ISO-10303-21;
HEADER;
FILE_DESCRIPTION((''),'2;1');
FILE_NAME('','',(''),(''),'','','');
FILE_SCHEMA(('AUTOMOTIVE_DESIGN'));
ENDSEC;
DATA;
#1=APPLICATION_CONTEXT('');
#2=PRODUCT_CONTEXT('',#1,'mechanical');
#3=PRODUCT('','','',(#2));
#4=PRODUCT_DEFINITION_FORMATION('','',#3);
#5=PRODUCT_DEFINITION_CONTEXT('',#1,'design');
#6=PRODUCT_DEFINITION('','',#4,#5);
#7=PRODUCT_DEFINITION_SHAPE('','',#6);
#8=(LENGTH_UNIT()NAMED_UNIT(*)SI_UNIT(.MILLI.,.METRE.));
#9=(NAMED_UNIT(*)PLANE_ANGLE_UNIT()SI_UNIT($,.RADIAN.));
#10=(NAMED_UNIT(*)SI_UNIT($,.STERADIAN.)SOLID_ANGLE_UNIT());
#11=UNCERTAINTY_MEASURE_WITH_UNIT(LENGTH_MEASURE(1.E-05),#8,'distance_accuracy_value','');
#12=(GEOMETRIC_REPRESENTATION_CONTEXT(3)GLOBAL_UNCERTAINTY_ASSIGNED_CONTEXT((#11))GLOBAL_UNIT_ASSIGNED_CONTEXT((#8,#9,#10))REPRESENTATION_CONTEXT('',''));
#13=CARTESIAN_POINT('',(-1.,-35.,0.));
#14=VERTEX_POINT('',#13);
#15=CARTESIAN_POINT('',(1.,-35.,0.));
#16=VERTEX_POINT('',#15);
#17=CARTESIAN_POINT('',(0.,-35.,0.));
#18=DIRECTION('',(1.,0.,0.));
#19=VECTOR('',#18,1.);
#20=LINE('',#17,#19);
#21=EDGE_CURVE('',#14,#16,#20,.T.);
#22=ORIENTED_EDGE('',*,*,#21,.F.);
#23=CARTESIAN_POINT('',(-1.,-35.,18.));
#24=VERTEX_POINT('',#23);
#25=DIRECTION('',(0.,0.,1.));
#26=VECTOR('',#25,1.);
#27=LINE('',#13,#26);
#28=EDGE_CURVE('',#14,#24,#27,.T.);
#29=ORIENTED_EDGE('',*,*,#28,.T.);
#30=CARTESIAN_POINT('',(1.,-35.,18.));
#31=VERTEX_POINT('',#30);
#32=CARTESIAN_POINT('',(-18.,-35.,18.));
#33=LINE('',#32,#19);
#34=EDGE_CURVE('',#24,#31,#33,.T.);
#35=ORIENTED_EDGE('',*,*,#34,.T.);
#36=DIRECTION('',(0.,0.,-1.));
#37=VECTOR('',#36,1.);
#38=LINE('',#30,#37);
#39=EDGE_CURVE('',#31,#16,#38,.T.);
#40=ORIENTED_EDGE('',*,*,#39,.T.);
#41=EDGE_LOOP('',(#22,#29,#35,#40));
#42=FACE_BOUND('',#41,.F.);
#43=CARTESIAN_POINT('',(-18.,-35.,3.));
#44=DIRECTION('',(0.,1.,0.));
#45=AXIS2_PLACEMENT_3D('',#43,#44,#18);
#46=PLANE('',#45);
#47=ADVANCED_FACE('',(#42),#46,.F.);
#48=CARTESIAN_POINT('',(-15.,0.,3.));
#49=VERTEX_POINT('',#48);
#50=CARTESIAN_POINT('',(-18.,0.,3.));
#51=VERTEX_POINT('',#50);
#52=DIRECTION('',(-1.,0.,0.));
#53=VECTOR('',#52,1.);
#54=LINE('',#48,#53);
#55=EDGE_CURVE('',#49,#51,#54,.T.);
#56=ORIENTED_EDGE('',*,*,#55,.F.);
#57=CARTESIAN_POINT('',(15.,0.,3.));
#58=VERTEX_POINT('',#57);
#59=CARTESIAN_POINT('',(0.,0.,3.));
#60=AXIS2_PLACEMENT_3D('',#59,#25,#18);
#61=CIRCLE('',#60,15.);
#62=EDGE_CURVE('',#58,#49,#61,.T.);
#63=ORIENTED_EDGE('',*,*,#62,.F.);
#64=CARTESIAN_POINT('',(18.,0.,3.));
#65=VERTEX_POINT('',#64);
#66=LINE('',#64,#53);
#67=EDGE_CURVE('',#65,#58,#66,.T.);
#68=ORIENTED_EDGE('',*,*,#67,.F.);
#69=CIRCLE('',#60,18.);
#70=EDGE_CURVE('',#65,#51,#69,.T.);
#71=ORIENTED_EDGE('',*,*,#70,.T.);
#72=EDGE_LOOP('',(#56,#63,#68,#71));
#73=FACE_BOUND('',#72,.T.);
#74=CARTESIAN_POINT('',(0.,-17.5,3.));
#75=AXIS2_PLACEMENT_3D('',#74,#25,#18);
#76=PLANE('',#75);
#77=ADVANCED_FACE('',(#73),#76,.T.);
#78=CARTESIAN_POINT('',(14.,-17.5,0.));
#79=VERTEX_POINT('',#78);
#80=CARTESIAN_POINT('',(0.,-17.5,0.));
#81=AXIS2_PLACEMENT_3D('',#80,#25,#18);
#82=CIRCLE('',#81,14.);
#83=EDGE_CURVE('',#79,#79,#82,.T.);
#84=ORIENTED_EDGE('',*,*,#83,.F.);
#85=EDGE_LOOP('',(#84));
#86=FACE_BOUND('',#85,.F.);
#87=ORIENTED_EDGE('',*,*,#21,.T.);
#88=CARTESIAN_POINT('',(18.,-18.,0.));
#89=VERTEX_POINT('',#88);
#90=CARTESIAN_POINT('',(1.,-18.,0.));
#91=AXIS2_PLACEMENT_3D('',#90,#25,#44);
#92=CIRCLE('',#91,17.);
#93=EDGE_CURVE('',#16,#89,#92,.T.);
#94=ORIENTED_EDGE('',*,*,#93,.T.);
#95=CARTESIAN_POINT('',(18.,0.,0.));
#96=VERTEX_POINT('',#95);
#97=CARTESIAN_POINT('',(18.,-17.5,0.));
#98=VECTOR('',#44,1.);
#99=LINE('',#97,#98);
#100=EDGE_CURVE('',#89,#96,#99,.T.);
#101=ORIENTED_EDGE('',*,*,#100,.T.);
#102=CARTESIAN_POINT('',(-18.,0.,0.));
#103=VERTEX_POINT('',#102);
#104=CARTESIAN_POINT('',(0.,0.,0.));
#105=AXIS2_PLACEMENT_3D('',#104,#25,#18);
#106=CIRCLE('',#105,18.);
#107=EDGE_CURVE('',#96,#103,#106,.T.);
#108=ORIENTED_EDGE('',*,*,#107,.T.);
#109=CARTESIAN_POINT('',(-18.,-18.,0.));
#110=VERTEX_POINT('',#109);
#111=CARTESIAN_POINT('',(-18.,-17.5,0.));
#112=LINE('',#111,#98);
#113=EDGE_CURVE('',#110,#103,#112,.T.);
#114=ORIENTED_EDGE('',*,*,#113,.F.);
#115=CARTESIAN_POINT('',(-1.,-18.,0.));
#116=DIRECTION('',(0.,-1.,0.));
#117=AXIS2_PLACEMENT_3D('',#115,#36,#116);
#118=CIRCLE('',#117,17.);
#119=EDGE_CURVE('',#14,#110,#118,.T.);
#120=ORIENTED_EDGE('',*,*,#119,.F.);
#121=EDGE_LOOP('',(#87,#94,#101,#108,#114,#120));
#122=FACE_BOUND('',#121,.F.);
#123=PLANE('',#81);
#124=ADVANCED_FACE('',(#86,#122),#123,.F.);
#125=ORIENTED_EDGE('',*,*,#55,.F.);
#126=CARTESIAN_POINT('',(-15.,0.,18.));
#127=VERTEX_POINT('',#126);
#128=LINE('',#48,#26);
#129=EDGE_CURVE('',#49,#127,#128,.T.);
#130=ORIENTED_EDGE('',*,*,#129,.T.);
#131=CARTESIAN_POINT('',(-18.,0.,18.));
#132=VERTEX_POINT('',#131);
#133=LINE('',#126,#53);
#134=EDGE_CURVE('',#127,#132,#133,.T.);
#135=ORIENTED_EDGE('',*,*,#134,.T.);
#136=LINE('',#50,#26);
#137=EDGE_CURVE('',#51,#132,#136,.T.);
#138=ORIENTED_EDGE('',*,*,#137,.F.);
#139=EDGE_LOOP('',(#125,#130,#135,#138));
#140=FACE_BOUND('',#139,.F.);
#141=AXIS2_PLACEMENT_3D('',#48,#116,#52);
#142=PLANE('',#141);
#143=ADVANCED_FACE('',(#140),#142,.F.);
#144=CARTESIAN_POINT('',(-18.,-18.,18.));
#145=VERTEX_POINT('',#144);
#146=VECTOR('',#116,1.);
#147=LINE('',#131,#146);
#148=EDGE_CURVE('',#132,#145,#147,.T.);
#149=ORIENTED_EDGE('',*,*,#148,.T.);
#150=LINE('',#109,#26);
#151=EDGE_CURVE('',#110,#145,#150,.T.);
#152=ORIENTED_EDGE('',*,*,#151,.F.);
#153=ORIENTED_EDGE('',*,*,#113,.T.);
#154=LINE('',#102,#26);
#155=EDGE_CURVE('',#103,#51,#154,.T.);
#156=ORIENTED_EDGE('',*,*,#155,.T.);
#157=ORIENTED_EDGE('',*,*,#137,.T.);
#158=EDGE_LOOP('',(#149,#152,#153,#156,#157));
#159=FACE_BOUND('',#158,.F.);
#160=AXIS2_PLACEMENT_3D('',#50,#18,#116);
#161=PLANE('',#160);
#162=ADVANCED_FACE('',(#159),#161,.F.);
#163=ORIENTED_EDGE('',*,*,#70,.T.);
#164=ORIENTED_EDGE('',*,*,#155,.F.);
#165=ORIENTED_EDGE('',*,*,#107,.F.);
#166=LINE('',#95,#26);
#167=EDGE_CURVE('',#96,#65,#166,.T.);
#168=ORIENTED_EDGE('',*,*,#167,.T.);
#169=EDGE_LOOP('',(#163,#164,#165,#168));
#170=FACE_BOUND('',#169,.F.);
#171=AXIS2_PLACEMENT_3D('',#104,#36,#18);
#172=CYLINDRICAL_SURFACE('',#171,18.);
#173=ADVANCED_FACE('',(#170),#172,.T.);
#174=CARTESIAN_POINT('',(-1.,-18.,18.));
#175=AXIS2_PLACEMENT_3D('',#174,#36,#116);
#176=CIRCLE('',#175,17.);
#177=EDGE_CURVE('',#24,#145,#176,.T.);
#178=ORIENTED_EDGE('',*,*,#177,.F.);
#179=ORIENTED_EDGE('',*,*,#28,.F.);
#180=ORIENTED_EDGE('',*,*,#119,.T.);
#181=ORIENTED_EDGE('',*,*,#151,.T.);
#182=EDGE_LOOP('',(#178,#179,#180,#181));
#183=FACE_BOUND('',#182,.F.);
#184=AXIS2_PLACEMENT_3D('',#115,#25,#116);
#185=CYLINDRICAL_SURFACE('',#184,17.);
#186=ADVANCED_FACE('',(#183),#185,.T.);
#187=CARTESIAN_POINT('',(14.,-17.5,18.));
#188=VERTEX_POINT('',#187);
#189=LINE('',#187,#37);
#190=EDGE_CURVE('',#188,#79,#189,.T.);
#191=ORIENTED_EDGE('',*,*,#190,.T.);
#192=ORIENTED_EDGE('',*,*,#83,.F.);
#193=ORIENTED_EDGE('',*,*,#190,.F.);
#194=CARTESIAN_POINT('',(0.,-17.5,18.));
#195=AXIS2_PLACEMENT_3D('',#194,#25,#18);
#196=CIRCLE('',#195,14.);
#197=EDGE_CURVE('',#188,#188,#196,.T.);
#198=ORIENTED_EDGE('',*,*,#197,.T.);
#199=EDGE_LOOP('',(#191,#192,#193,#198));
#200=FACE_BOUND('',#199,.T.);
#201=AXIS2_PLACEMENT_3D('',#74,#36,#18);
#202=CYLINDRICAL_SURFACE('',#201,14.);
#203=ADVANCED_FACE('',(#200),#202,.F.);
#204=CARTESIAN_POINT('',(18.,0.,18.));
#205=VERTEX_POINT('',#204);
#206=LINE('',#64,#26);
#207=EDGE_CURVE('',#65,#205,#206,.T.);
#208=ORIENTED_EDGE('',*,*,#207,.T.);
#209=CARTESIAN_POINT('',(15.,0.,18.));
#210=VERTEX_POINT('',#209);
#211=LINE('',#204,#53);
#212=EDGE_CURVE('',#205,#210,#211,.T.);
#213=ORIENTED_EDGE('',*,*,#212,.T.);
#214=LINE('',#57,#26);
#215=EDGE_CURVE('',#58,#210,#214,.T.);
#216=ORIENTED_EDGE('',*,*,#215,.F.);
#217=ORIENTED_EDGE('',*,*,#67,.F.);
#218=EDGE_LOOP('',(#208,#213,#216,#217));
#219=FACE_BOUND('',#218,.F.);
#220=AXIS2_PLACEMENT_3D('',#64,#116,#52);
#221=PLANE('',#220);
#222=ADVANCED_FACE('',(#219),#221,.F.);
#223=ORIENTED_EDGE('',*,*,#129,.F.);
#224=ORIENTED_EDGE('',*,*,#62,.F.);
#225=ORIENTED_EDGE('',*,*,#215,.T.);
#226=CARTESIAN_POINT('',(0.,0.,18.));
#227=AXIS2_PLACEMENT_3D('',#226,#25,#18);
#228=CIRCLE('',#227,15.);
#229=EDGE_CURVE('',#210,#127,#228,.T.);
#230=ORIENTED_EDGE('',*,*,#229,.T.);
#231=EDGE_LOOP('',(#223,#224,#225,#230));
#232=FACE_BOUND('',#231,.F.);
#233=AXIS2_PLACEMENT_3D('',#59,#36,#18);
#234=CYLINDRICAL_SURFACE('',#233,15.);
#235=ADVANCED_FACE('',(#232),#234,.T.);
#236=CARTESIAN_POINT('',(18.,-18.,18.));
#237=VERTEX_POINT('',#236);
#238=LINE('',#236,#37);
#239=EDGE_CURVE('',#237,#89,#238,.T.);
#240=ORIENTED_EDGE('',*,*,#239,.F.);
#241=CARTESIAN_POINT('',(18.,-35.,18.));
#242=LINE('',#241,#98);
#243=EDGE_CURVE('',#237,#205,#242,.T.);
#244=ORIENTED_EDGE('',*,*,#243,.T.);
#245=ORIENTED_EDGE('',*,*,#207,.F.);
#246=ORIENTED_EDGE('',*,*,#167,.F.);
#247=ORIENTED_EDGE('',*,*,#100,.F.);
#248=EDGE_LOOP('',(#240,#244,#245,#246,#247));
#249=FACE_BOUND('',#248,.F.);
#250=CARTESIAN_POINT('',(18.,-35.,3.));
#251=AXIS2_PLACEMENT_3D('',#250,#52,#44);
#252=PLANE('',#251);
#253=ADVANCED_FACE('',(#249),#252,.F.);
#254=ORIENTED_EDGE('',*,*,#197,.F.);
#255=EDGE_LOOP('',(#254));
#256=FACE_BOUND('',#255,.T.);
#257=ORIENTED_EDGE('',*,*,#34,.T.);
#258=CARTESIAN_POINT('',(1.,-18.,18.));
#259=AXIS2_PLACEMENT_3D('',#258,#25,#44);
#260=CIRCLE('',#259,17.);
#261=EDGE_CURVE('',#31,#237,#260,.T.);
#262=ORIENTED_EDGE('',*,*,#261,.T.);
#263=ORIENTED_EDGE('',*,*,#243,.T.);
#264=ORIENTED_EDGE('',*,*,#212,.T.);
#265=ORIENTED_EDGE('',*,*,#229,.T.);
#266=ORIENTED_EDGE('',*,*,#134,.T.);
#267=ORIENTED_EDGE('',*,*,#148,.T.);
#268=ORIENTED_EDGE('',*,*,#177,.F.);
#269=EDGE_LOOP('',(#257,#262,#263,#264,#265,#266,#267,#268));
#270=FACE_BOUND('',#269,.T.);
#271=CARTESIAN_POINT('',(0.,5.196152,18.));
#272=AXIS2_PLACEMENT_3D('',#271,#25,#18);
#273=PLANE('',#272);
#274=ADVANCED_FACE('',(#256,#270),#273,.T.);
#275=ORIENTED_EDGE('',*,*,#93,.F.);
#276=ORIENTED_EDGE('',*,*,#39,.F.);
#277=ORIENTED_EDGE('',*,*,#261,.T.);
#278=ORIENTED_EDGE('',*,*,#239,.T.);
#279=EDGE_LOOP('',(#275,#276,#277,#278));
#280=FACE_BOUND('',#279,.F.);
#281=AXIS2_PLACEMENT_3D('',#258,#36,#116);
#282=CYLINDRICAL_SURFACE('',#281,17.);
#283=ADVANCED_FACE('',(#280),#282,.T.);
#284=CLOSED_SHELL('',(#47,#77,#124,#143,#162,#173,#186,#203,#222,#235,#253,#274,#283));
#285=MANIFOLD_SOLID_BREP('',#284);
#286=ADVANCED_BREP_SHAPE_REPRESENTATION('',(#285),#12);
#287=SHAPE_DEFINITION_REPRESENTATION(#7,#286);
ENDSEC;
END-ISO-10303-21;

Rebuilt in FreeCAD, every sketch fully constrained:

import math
import FreeCAD as App
import Part
import Sketcher


def edges_at(feature, points):
    """Names of the edges that pass closest to the given points."""
    edges = feature.Shape.Edges
    near = lambda p: min(range(len(edges)), key=lambda i: edges[i].distToShape(Part.Vertex(*p))[0])
    return sorted({f"Edge{near(p) + 1}" for p in points})

doc = App.newDocument("Part")
body = doc.addObject("PartDesign::Body", "Body")

# Sketch on XY plane
sketch1 = body.newObject("Sketcher::SketchObject", "Sketch")
sketch1.AttachmentSupport = (doc.getObject("XY_Plane"), [""])
sketch1.MapMode = "FlatFace"
sketch1.addGeometry([
    Part.LineSegment(App.Vector(-18, 0, 0), App.Vector(-18, -35, 0)),  # 0
    Part.LineSegment(App.Vector(-18, -35, 0), App.Vector(18, -35, 0)),  # 1
    Part.LineSegment(App.Vector(18, -35, 0), App.Vector(18, 0, 0)),  # 2
    Part.ArcOfCircle(Part.Circle(App.Vector(0, 0, 0), App.Vector(0, 0, 1), 18), math.radians(0), math.radians(180)),  # 3
    Part.Circle(App.Vector(0, -18, 0), App.Vector(0, 0, 1), 14),  # 4
], False)
sketch1.addConstraint([
    Sketcher.Constraint("Coincident", 0, 2, 1, 1),
    Sketcher.Constraint("Coincident", 1, 2, 2, 1),
    Sketcher.Constraint("Tangent", 2, 2, 3, 1),
    Sketcher.Constraint("Tangent", 3, 2, 0, 1),
    Sketcher.Constraint("Vertical", 0),
    Sketcher.Constraint("Horizontal", 1),
    Sketcher.Constraint("Vertical", 2),
    Sketcher.Constraint("Coincident", 3, 3, -1, 1),
    Sketcher.Constraint("PointOnObject", 4, 3, -2),
    Sketcher.Constraint("Diameter", 4, 28.0),
    Sketcher.Constraint("Radius", 3, 18.0),
    Sketcher.Constraint("DistanceY", 0, 2, 0, 1, 35.0),
    Sketcher.Constraint("DistanceY", 4, 3, -1, 1, 17.5),
])
pad1 = body.newObject("PartDesign::Pad", "Pad")
pad1.Profile = sketch1
pad1.Length = 3

# Sketch on XY plane
sketch2 = body.newObject("Sketcher::SketchObject", "Sketch001")
sketch2.AttachmentSupport = (doc.getObject("XY_Plane"), [""])
sketch2.MapMode = "FlatFace"
sketch2.AttachmentOffset = App.Placement(App.Vector(0, 0, 3), App.Rotation())
sketch2.addGeometry([
    Part.ArcOfCircle(Part.Circle(App.Vector(0, 0, 0), App.Vector(0, 0, 1), 15), math.radians(0), math.radians(180)),  # 0
    Part.LineSegment(App.Vector(-15, 0, 0), App.Vector(-18, 0, 0)),  # 1
    Part.LineSegment(App.Vector(-18, 0, 0), App.Vector(-18, -35, 0)),  # 2
    Part.LineSegment(App.Vector(-18, -35, 0), App.Vector(18, -35, 0)),  # 3
    Part.LineSegment(App.Vector(18, -35, 0), App.Vector(18, 0, 0)),  # 4
    Part.LineSegment(App.Vector(18, 0, 0), App.Vector(15, 0, 0)),  # 5
    Part.Circle(App.Vector(0, -17.5, 0), App.Vector(0, 0, 1), 14),  # 6
], False)
sketch2.addConstraint([
    Sketcher.Constraint("Coincident", 0, 2, 1, 1),
    Sketcher.Constraint("Coincident", 1, 2, 2, 1),
    Sketcher.Constraint("Coincident", 2, 2, 3, 1),
    Sketcher.Constraint("Coincident", 3, 2, 4, 1),
    Sketcher.Constraint("Coincident", 4, 2, 5, 1),
    Sketcher.Constraint("Coincident", 5, 2, 0, 1),
    Sketcher.Constraint("Horizontal", 1),
    Sketcher.Constraint("Vertical", 2),
    Sketcher.Constraint("Horizontal", 3),
    Sketcher.Constraint("Vertical", 4),
    Sketcher.Constraint("Horizontal", 5),
    Sketcher.Constraint("Coincident", 0, 3, -1, 1),
    Sketcher.Constraint("Symmetric", 1, 2, 4, 2, -1, 1),
    Sketcher.Constraint("PointOnObject", 6, 3, -2),
    Sketcher.Constraint("PointOnObject", 0, 2, -1),
    Sketcher.Constraint("Diameter", 6, 28.0),
    Sketcher.Constraint("Radius", 0, 15.0),
    Sketcher.Constraint("DistanceX", 1, 2, 1, 1, 3.0),
    Sketcher.Constraint("DistanceY", 2, 2, 2, 1, 35.0),
    Sketcher.Constraint("DistanceY", 6, 3, -1, 1, 17.5),
])
pad2 = body.newObject("PartDesign::Pad", "Pad001")
pad2.Profile = sketch2
pad2.Length = 15
doc.recompute()

fillet = body.newObject("PartDesign::Fillet", "Fillet")
fillet.Base = (pad2, edges_at(pad2, [(-18, -35, 9), (18, -35, 9)]))
fillet.Radius = 17

doc.recompute()
